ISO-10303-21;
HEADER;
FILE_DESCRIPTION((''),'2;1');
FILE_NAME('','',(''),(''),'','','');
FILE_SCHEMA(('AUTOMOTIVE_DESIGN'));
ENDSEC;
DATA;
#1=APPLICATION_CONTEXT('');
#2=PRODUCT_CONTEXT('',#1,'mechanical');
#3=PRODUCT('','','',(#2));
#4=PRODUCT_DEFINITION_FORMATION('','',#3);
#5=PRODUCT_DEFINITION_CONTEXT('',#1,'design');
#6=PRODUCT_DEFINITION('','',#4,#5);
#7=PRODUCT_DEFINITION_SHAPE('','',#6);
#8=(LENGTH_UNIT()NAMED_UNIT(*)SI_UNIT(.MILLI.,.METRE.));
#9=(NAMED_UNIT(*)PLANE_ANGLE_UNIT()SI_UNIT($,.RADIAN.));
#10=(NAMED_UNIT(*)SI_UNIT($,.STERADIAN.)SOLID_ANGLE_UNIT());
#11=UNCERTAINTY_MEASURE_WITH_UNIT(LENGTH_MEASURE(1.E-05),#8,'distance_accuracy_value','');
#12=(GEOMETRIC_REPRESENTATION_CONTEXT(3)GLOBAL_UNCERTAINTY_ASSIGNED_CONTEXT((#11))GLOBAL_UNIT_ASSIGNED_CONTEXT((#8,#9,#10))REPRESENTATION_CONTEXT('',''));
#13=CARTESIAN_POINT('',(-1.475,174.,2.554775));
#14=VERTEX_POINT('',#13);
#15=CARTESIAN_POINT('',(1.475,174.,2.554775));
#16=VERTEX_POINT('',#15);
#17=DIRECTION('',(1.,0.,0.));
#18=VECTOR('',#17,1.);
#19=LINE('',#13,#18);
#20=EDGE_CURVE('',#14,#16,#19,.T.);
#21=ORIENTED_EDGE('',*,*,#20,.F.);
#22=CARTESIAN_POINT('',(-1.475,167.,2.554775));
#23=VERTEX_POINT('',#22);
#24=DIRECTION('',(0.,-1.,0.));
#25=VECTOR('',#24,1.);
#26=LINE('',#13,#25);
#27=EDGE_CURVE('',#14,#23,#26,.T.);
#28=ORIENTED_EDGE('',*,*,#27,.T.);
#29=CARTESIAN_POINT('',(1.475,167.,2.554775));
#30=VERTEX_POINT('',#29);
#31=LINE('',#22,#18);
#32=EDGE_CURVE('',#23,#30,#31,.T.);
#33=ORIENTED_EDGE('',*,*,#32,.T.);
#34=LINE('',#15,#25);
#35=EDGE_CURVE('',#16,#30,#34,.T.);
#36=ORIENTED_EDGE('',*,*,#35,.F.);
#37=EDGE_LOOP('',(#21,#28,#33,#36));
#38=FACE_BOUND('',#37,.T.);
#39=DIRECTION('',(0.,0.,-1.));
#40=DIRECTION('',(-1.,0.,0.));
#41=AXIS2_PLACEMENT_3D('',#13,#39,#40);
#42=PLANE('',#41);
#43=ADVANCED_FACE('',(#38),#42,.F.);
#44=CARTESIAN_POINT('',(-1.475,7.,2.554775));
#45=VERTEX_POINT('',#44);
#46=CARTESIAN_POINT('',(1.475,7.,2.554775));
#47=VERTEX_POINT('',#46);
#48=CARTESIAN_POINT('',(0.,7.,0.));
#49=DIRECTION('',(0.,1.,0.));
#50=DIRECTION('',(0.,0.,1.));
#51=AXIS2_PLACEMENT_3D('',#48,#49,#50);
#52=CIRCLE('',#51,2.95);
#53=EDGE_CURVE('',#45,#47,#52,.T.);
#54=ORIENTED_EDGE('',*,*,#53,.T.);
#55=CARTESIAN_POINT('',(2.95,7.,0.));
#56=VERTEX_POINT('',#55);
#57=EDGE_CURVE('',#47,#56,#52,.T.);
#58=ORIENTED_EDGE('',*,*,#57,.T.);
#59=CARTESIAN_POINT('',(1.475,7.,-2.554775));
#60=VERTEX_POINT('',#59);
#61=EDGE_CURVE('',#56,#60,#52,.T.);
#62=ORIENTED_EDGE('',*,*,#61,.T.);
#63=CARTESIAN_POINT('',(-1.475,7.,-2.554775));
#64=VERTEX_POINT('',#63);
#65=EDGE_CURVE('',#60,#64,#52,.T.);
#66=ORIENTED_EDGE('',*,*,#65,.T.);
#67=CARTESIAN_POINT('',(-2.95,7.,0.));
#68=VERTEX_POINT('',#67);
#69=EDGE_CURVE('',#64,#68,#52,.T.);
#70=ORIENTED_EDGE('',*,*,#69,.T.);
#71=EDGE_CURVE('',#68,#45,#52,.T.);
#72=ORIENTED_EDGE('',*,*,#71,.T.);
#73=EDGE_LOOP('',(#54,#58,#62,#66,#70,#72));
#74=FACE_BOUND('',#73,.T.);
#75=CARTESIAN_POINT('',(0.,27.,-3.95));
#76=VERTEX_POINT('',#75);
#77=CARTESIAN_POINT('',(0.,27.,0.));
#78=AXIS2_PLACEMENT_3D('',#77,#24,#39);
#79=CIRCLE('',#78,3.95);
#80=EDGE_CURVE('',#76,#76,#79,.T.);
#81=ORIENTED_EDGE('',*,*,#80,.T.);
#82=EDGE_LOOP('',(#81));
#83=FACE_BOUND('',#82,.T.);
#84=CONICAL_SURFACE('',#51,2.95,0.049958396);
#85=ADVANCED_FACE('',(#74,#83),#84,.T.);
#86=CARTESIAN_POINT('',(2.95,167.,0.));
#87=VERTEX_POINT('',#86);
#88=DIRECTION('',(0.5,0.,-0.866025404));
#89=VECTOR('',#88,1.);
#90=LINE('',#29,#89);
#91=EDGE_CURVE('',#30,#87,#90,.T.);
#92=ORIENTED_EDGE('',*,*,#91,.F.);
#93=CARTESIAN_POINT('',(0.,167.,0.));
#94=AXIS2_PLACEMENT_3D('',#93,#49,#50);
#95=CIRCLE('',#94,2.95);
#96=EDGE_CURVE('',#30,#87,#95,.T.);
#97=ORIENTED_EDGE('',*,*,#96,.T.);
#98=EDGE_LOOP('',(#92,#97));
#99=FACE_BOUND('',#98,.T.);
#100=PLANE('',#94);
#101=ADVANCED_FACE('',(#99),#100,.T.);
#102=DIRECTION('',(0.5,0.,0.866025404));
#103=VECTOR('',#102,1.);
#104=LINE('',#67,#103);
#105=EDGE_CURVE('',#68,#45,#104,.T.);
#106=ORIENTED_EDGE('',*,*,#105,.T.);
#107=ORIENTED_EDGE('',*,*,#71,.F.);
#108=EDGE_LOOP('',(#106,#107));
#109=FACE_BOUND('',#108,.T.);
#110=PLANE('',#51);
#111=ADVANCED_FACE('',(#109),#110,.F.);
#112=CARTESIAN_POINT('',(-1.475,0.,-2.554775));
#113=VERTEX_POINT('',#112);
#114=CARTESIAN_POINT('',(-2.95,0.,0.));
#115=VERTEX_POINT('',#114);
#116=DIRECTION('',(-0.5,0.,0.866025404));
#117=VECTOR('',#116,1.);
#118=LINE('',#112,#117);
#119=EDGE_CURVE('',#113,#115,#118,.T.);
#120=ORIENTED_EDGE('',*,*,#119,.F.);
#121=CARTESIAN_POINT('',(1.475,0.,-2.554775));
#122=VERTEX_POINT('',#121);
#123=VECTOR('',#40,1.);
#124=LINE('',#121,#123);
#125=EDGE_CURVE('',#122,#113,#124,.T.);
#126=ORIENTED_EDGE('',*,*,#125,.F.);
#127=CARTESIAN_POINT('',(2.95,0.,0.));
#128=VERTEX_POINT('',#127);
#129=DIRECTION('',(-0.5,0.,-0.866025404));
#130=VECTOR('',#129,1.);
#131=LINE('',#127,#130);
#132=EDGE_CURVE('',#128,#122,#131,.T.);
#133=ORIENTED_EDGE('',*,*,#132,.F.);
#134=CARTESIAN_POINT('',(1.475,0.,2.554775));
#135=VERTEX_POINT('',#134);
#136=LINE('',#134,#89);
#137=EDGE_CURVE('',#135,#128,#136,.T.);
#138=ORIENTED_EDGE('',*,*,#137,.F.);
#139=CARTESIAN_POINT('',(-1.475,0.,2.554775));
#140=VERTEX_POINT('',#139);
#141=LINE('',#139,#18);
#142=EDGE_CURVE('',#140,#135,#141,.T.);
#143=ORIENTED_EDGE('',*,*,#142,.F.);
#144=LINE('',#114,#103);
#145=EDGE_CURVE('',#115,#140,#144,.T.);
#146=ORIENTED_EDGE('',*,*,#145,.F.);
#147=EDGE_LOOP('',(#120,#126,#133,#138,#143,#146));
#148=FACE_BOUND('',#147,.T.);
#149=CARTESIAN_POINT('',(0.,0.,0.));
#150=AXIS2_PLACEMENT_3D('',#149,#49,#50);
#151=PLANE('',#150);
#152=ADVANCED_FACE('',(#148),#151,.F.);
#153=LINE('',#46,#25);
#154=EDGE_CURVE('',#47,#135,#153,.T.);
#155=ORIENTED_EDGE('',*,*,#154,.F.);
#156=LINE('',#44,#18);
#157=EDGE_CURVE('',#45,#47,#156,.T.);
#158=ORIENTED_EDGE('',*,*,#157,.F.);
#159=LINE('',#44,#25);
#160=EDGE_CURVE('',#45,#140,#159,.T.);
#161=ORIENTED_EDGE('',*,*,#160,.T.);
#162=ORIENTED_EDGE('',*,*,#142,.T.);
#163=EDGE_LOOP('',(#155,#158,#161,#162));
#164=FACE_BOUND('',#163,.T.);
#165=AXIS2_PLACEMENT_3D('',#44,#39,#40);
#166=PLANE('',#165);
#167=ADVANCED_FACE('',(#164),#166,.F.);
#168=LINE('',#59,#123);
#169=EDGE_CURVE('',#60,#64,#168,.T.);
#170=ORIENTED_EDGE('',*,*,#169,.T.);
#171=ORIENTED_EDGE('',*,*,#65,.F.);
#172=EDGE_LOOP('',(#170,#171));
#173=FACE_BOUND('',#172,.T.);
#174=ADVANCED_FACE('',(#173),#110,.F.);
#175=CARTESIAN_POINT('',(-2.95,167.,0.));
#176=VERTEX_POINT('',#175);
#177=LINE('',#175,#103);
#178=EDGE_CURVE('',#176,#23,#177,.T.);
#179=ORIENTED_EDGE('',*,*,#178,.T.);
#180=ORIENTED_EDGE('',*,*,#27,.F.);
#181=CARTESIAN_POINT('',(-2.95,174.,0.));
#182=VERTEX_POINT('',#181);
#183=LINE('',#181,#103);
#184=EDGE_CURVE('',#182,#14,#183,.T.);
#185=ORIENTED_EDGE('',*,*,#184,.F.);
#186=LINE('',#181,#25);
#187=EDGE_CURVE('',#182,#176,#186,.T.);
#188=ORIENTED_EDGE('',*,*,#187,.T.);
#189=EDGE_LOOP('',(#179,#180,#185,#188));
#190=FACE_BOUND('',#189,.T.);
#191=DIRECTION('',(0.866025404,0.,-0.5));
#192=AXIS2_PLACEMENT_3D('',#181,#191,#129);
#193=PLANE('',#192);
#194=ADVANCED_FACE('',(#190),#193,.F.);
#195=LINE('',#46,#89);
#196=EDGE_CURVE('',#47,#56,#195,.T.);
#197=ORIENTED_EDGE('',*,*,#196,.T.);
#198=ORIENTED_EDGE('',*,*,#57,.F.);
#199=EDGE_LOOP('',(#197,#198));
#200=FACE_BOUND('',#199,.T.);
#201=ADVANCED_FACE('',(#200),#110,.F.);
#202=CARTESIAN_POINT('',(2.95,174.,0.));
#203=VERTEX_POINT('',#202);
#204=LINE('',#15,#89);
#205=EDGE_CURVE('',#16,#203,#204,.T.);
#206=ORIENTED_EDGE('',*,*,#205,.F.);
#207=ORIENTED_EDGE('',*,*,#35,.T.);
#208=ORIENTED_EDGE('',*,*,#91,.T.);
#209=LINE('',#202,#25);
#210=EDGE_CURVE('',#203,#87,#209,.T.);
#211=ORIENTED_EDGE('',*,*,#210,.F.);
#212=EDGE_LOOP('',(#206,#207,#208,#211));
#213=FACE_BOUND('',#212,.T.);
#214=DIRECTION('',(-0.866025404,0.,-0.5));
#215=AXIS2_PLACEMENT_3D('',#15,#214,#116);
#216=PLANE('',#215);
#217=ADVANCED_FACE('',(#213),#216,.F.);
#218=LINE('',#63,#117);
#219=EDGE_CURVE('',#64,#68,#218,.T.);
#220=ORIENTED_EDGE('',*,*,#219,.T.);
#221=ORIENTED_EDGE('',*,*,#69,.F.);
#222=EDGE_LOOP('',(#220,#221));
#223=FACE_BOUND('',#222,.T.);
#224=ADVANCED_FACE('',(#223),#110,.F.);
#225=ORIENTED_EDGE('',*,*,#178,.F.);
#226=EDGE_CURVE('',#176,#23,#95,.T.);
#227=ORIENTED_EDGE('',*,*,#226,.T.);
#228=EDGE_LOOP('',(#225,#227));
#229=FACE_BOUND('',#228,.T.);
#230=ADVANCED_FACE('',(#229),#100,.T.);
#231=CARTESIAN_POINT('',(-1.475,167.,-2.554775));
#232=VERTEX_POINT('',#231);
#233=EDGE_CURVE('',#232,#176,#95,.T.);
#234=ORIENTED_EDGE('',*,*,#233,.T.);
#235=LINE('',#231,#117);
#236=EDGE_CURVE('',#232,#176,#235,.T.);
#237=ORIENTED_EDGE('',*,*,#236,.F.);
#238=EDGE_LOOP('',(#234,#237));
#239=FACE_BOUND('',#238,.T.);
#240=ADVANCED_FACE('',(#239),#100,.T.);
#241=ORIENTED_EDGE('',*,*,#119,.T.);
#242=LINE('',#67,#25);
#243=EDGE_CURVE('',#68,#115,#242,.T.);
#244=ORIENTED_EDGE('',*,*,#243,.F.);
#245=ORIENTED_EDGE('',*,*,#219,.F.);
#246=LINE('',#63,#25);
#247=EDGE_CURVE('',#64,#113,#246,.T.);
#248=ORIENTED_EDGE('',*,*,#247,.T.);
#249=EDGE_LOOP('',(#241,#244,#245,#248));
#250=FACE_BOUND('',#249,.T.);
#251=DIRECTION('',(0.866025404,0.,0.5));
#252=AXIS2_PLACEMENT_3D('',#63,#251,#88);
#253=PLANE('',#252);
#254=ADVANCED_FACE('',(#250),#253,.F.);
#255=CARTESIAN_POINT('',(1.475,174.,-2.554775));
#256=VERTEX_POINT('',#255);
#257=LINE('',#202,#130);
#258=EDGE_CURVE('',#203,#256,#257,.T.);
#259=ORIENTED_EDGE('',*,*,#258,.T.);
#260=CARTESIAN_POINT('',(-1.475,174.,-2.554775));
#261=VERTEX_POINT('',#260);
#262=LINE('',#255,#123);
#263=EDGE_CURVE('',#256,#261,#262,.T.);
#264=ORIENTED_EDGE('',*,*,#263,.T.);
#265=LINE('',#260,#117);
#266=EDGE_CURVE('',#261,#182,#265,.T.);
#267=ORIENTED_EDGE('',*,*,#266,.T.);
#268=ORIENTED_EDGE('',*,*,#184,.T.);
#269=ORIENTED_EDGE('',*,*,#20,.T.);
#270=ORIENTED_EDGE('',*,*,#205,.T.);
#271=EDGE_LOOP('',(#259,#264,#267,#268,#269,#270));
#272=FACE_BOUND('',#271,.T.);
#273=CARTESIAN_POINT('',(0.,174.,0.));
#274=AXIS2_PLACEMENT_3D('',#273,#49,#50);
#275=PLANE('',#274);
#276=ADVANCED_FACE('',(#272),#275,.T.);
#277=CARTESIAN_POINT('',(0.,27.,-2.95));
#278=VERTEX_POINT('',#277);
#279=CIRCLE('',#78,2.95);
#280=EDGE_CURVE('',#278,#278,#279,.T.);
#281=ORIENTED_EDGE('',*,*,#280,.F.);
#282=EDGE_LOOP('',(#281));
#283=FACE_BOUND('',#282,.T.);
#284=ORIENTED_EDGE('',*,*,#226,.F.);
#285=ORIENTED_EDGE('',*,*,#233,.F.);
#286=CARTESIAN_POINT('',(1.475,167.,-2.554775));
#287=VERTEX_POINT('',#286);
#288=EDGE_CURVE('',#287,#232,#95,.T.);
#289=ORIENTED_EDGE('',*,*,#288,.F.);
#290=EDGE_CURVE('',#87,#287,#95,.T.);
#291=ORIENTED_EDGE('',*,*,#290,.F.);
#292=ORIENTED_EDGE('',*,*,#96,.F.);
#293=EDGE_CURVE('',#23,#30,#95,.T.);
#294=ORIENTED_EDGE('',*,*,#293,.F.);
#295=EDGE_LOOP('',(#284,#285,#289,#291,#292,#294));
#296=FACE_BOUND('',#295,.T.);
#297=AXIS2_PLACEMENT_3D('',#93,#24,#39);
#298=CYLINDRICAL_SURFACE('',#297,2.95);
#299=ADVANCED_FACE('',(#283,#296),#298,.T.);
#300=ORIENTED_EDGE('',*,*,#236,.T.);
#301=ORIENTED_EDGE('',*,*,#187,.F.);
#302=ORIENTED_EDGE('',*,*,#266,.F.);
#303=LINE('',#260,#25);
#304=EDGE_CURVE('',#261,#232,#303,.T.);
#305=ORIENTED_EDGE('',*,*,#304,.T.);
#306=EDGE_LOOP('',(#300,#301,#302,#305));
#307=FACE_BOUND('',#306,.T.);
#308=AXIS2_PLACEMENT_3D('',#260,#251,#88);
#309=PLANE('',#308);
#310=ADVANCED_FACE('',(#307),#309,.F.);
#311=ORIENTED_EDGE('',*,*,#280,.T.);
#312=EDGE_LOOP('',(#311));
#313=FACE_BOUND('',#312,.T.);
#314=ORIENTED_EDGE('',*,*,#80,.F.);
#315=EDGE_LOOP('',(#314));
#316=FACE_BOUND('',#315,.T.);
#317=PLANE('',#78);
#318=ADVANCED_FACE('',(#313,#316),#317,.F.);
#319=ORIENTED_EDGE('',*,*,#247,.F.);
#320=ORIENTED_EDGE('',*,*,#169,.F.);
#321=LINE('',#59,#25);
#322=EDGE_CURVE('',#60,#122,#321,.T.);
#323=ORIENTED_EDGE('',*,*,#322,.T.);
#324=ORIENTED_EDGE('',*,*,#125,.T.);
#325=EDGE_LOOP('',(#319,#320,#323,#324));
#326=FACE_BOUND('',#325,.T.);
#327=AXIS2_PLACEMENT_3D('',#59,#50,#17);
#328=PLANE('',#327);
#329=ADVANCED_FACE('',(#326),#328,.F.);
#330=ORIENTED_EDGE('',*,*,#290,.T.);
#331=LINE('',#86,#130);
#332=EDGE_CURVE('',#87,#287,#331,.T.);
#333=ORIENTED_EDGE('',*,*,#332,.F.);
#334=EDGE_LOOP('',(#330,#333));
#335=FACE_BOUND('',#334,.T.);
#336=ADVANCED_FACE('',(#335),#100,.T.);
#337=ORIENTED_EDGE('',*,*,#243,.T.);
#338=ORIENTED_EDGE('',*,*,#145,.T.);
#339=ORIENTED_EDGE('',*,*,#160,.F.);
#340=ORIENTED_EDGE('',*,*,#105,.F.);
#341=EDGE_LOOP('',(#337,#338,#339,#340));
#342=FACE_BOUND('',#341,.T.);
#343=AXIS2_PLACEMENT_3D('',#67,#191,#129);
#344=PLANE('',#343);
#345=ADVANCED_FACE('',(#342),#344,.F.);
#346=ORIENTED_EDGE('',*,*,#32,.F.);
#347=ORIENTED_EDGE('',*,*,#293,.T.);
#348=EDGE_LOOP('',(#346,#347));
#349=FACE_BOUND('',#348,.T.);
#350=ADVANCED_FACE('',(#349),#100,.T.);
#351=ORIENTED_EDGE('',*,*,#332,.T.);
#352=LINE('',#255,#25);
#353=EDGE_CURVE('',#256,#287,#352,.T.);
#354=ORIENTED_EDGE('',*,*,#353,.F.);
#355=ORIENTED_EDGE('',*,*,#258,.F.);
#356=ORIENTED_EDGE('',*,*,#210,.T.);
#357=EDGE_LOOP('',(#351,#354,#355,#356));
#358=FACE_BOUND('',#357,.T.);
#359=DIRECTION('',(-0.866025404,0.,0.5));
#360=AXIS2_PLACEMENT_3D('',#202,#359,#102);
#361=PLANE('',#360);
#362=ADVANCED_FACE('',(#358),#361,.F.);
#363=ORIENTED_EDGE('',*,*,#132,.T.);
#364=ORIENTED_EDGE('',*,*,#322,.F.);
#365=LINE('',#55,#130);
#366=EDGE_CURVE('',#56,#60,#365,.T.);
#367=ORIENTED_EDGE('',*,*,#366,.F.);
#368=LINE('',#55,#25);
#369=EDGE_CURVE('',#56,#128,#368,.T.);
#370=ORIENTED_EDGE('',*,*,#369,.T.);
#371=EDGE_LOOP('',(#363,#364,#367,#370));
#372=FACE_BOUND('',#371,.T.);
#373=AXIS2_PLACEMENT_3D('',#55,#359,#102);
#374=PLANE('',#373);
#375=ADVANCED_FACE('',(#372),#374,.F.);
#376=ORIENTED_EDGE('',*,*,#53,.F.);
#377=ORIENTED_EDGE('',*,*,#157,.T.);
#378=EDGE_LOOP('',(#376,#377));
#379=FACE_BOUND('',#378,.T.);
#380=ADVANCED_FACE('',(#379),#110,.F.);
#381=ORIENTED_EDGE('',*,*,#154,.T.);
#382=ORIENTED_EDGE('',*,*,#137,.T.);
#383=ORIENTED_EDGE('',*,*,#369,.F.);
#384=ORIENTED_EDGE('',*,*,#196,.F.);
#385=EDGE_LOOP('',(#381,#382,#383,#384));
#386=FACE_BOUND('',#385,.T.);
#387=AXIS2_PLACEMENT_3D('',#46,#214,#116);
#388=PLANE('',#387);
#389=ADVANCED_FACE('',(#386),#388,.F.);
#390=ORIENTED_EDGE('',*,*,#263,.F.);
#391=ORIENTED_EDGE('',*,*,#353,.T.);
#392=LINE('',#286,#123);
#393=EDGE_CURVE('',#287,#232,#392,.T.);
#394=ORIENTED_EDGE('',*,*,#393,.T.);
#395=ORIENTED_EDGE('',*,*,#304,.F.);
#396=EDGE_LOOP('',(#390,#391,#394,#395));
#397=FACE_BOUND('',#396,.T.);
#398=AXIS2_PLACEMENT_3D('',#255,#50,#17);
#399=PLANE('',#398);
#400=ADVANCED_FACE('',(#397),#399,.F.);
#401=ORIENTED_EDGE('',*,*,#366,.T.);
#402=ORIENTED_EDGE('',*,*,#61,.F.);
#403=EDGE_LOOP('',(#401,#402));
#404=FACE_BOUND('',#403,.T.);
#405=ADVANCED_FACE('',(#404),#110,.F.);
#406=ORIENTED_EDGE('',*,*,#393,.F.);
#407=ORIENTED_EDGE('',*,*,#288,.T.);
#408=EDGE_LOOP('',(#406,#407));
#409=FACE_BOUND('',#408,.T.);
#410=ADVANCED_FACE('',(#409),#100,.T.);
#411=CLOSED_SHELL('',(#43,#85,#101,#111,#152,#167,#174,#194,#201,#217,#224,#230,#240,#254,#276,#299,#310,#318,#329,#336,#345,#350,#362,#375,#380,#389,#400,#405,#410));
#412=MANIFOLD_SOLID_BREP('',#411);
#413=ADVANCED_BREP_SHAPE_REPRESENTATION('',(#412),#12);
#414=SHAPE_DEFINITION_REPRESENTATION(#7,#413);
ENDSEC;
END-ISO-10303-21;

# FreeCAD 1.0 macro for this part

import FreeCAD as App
import Part
import Sketcher
Q = App.Units.Quantity

doc = App.newDocument("Part")
body = doc.addObject("PartDesign::Body", "Body")

# Sketch on XZ plane
sketch1 = body.newObject("Sketcher::SketchObject", "Sketch")
sketch1.AttachmentSupport = (doc.getObject("XZ_Plane"), [""])
sketch1.MapMode = "FlatFace"
sketch1.addGeometry([
    Part.LineSegment(App.Vector(1.5, 2.6, 0), App.Vector(3, 0, 0)),  # 0
    Part.LineSegment(App.Vector(3, 0, 0), App.Vector(1.5, -2.6, 0)),  # 1
    Part.LineSegment(App.Vector(1.5, -2.6, 0), App.Vector(-1.5, -2.6, 0)),  # 2
    Part.LineSegment(App.Vector(-1.5, -2.6, 0), App.Vector(-3, 0, 0)),  # 3
    Part.LineSegment(App.Vector(-3, 0, 0), App.Vector(-1.5, 2.6, 0)),  # 4
    Part.LineSegment(App.Vector(-1.5, 2.6, 0), App.Vector(1.5, 2.6, 0)),  # 5
], False)
sketch1.addConstraint([
    Sketcher.Constraint("Coincident", 0, 2, 1, 1),
    Sketcher.Constraint("Coincident", 1, 2, 2, 1),
    Sketcher.Constraint("Coincident", 2, 2, 3, 1),
    Sketcher.Constraint("Coincident", 3, 2, 4, 1),
    Sketcher.Constraint("Coincident", 4, 2, 5, 1),
    Sketcher.Constraint("Coincident", 5, 2, 0, 1),
    Sketcher.Constraint("Horizontal", 2),
    Sketcher.Constraint("Horizontal", 5),
    Sketcher.Constraint("Symmetric", 0, 2, 3, 2, -1, 1),
    Sketcher.Constraint("Symmetric", 1, 2, 4, 2, -1, 1),
    Sketcher.Constraint("PointOnObject", 0, 2, -1),
    Sketcher.Constraint("Parallel", 0, 3),
    Sketcher.Constraint("Vertical", 2, 2, 4, 2),
    Sketcher.Constraint("Angle", 0, Q("-60 deg")),
    Sketcher.Constraint("DistanceX", 2, 2, 2, 1, 2.95),
    Sketcher.Constraint("DistanceX", 3, 2, 0, 2, 5.9),
])
pad1 = body.newObject("PartDesign::Pad", "Pad")
pad1.Profile = sketch1
pad1.Length = 7
pad1.Reversed = True

# Sketch on XZ plane
sketch2 = body.newObject("Sketcher::SketchObject", "Sketch001")
sketch2.AttachmentSupport = (doc.getObject("XZ_Plane"), [""])
sketch2.MapMode = "FlatFace"
sketch2.AttachmentOffset = App.Placement(App.Vector(0, 0, -7), App.Rotation())
sketch2.addGeometry(Part.Circle(App.Vector(0, 0, 0), App.Vector(0, 0, 1), 3), False)
sketch2.addConstraint([
    Sketcher.Constraint("Coincident", 0, 3, -1, 1),
    Sketcher.Constraint("Diameter", 0, 5.9),
])
pad2 = body.newObject("PartDesign::Pad", "Pad001")
pad2.Profile = sketch2
pad2.Length = 160
pad2.Reversed = True

# Sketch on XZ plane
sketch3 = body.newObject("Sketcher::SketchObject", "Sketch002")
sketch3.AttachmentSupport = (doc.getObject("XZ_Plane"), [""])
sketch3.MapMode = "FlatFace"
sketch3.AttachmentOffset = App.Placement(App.Vector(0, 0, -7), App.Rotation())
sketch3.addGeometry(Part.Circle(App.Vector(0, 0, 0), App.Vector(0, 0, 1), 3), False)
sketch3.addConstraint([
    Sketcher.Constraint("Coincident", 0, 3, -1, 1),
    Sketcher.Constraint("Diameter", 0, 5.9),
])

# Sketch on XZ plane
sketch4 = body.newObject("Sketcher::SketchObject", "Sketch003")
sketch4.AttachmentSupport = (doc.getObject("XZ_Plane"), [""])
sketch4.MapMode = "FlatFace"
sketch4.AttachmentOffset = App.Placement(App.Vector(0, 0, -27), App.Rotation())
sketch4.addGeometry(Part.Circle(App.Vector(0, 0, 0), App.Vector(0, 0, 1), 4), False)
sketch4.addConstraint([
    Sketcher.Constraint("Coincident", 0, 3, -1, 1),
    Sketcher.Constraint("Diameter", 0, 7.9),
])

additiveloft = body.newObject("PartDesign::AdditiveLoft", "AdditiveLoft")
additiveloft.Profile = sketch3
additiveloft.Sections = [sketch4]

# Sketch on XZ plane
sketch5 = body.newObject("Sketcher::SketchObject", "Sketch004")
sketch5.AttachmentSupport = (doc.getObject("XZ_Plane"), [""])
sketch5.MapMode = "FlatFace"
sketch5.AttachmentOffset = App.Placement(App.Vector(0, 0, -167), App.Rotation())
sketch5.addGeometry([
    Part.LineSegment(App.Vector(1.5, 2.6, 0), App.Vector(3, 0, 0)),  # 0
    Part.LineSegment(App.Vector(3, 0, 0), App.Vector(1.5, -2.6, 0)),  # 1
    Part.LineSegment(App.Vector(1.5, -2.6, 0), App.Vector(-1.5, -2.6, 0)),  # 2
    Part.LineSegment(App.Vector(-1.5, -2.6, 0), App.Vector(-3, 0, 0)),  # 3
    Part.LineSegment(App.Vector(-3, 0, 0), App.Vector(-1.5, 2.6, 0)),  # 4
    Part.LineSegment(App.Vector(-1.5, 2.6, 0), App.Vector(1.5, 2.6, 0)),  # 5
], False)
sketch5.addConstraint([
    Sketcher.Constraint("Coincident", 0, 2, 1, 1),
    Sketcher.Constraint("Coincident", 1, 2, 2, 1),
    Sketcher.Constraint("Coincident", 2, 2, 3, 1),
    Sketcher.Constraint("Coincident", 3, 2, 4, 1),
    Sketcher.Constraint("Coincident", 4, 2, 5, 1),
    Sketcher.Constraint("Coincident", 5, 2, 0, 1),
    Sketcher.Constraint("Horizontal", 2),
    Sketcher.Constraint("Horizontal", 5),
    Sketcher.Constraint("Symmetric", 0, 2, 3, 2, -1, 1),
    Sketcher.Constraint("Symmetric", 1, 2, 4, 2, -1, 1),
    Sketcher.Constraint("PointOnObject", 0, 2, -1),
    Sketcher.Constraint("Parallel", 0, 3),
    Sketcher.Constraint("Vertical", 2, 2, 4, 2),
    Sketcher.Constraint("Angle", 0, Q("-60 deg")),
    Sketcher.Constraint("DistanceX", 2, 2, 2, 1, 2.95),
    Sketcher.Constraint("DistanceX", 3, 2, 0, 2, 5.9),
])
pad3 = body.newObject("PartDesign::Pad", "Pad002")
pad3.Profile = sketch5
pad3.Length = 7
pad3.Reversed = True

doc.recompute()
